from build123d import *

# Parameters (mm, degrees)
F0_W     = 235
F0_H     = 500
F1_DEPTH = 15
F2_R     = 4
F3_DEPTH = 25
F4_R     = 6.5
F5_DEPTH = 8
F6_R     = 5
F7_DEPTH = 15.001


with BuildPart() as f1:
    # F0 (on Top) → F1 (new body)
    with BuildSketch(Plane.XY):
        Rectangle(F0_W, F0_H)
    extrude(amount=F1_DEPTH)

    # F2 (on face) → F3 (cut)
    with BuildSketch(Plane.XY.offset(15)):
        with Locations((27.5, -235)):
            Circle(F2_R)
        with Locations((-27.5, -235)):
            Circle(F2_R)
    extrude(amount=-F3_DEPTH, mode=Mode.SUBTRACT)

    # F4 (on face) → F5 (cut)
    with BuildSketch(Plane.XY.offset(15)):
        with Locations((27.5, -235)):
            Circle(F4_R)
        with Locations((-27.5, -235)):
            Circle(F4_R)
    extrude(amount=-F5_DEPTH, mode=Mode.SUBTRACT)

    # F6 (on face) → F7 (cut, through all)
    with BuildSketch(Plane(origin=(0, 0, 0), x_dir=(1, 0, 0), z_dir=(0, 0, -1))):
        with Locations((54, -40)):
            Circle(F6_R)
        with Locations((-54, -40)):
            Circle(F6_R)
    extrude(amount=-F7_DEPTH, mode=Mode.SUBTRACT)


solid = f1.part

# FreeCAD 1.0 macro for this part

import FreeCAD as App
import Part
import Sketcher
Q = App.Units.Quantity


def add_polygon(sketch, points):
    """Adds a closed chain of lines whose ends are joined by coincident constraints."""
    first, n = sketch.GeometryCount, len(points)
    for a, b in zip(points, points[1:] + points[:1]):
        sketch.addGeometry(Part.LineSegment(App.Vector(*a, 0), App.Vector(*b, 0)), False)
    for i in range(n):
        sketch.addConstraint(Sketcher.Constraint("Coincident", first + i, 2, first + (i + 1) % n, 1))

doc = App.newDocument("Part")
body = doc.addObject("PartDesign::Body", "Body")

sketch1 = body.newObject("Sketcher::SketchObject", "Sketch")
sketch1.AttachmentSupport = (doc.getObject("XY_Plane"), [""])
sketch1.MapMode = "FlatFace"
add_polygon(sketch1, [(-118, 250), (-118, -250), (118, -250), (118, 250)])
sketch1.addConstraint([
    Sketcher.Constraint("Vertical", 0),
    Sketcher.Constraint("Horizontal", 1),
    Sketcher.Constraint("Vertical", 2),
    Sketcher.Constraint("Horizontal", 3),
    Sketcher.Constraint("Symmetric", 0, 2, 2, 2, -1, 1),
    Sketcher.Constraint("DistanceX", 1, 1, 1, 2, Q("235 mm")),
    Sketcher.Constraint("DistanceY", 0, 2, 0, 1, Q("500 mm")),
])
pad1 = body.newObject("PartDesign::Pad", "Pad")
pad1.Profile = sketch1
pad1.Length = 15

sketch2 = body.newObject("Sketcher::SketchObject", "Sketch001")
sketch2.AttachmentSupport = (doc.getObject("XY_Plane"), [""])
sketch2.MapMode = "FlatFace"
sketch2.AttachmentOffset = App.Placement(App.Vector(0, 0, 15), App.Rotation())
sketch2.addGeometry([
    Part.Circle(App.Vector(27.5, -235, 0), App.Vector(0, 0, 1), 4),
    Part.Circle(App.Vector(-27.5, -235, 0), App.Vector(0, 0, 1), 4),
], False)
sketch2.addConstraint([
    Sketcher.Constraint("Equal", 0, 1),
    Sketcher.Constraint("Symmetric", 0, 3, 1, 3, -2),
    Sketcher.Constraint("Diameter", 0, Q("8 mm")),
    Sketcher.Constraint("DistanceY", 0, 3, -1, 1, Q("235 mm")),
    Sketcher.Constraint("DistanceX", 1, 3, 0, 3, Q("55 mm")),
])
pocket1 = body.newObject("PartDesign::Pocket", "Pocket")
pocket1.Profile = sketch2
pocket1.Length = 25

sketch3 = body.newObject("Sketcher::SketchObject", "Sketch002")
sketch3.AttachmentSupport = (doc.getObject("XY_Plane"), [""])
sketch3.MapMode = "FlatFace"
sketch3.AttachmentOffset = App.Placement(App.Vector(0, 0, 15), App.Rotation())
sketch3.addGeometry([
    Part.Circle(App.Vector(28, -235, 0), App.Vector(0, 0, 1), 6),
    Part.Circle(App.Vector(-28, -235, 0), App.Vector(0, 0, 1), 6),
], False)
sketch3.addConstraint([
    Sketcher.Constraint("Equal", 0, 1),
    Sketcher.Constraint("Symmetric", 0, 3, 1, 3, -2),
    Sketcher.Constraint("Diameter", 0, Q("13 mm")),
    Sketcher.Constraint("DistanceY", 0, 3, -1, 1, Q("235 mm")),
    Sketcher.Constraint("DistanceX", 1, 3, 0, 3, Q("55 mm")),
])
pocket2 = body.newObject("PartDesign::Pocket", "Pocket001")
pocket2.Profile = sketch3
pocket2.Length = 8

sketch4 = body.newObject("Sketcher::SketchObject", "Sketch003")
sketch4.AttachmentSupport = (doc.getObject("XY_Plane"), [""])
sketch4.MapMode = "FlatFace"
sketch4.addGeometry([
    Part.Circle(App.Vector(54, 40, 0), App.Vector(0, 0, 1), 5),
    Part.Circle(App.Vector(-54, 40, 0), App.Vector(0, 0, 1), 5),
], False)
sketch4.addConstraint([
    Sketcher.Constraint("Equal", 0, 1),
    Sketcher.Constraint("Symmetric", 0, 3, 1, 3, -2),
    Sketcher.Constraint("Diameter", 0, Q("10 mm")),
    Sketcher.Constraint("DistanceX", -1, 1, 0, 3, Q("54 mm")),
    Sketcher.Constraint("DistanceY", -1, 1, 0, 3, Q("40 mm")),
])
pocket3 = body.newObject("PartDesign::Pocket", "Pocket002")
pocket3.Profile = sketch4
pocket3.Type = "ThroughAll"
pocket3.Reversed = True

doc.recompute()
